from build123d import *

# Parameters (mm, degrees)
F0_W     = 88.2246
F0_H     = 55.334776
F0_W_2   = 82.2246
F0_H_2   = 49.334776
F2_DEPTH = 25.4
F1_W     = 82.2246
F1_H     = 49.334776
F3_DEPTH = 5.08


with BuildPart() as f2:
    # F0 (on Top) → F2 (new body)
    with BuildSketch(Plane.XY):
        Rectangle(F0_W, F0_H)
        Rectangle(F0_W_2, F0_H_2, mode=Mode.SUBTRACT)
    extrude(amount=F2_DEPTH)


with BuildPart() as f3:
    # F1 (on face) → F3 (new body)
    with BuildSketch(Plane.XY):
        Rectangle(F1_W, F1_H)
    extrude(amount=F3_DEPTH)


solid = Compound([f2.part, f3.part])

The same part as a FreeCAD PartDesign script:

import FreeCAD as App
import Part
import Sketcher
Q = App.Units.Quantity


def add_polygon(sketch, points):
    """Adds a closed chain of lines whose ends are joined by coincident constraints."""
    first, n = sketch.GeometryCount, len(points)
    for a, b in zip(points, points[1:] + points[:1]):
        sketch.addGeometry(Part.LineSegment(App.Vector(*a, 0), App.Vector(*b, 0)), False)
    for i in range(n):
        sketch.addConstraint(Sketcher.Constraint("Coincident", first + i, 2, first + (i + 1) % n, 1))

doc = App.newDocument("Part")
params = doc.addObject("Spreadsheet::Sheet", "Params")
for row, (alias, value) in enumerate([
    ("pad1_length", "1 in"),
    ("pad2_length", "0.2 in"),
], start=1):
    params.set(f"A{row}", alias)
    params.set(f"B{row}", "=" + value)
    params.setAlias(f"B{row}", alias)

body = doc.addObject("PartDesign::Body", "Body")

# Sketch on XY plane
sketch1 = body.newObject("Sketcher::SketchObject", "Sketch")
sketch1.AttachmentSupport = (doc.getObject("XY_Plane"), [""])
sketch1.MapMode = "FlatFace"
add_polygon(sketch1, [(-44, 28), (-44, -28), (44, -28), (44, 28)])  # lines 0-3
add_polygon(sketch1, [(41, -25), (-41, -25), (-41, 25), (41, 25)])  # lines 4-7
sketch1.addConstraint([
    Sketcher.Constraint("Vertical", 0),
    Sketcher.Constraint("Horizontal", 1),
    Sketcher.Constraint("Vertical", 2),
    Sketcher.Constraint("Horizontal", 3),
    Sketcher.Constraint("Horizontal", 4),
    Sketcher.Constraint("Vertical", 5),
    Sketcher.Constraint("Horizontal", 6),
    Sketcher.Constraint("Vertical", 7),
    Sketcher.Constraint("Symmetric", 0, 2, 2, 2, -1, 1),
    Sketcher.Constraint("Symmetric", 4, 2, 6, 2, -1, 1),
    Sketcher.Constraint("DistanceX", 1, 1, 1, 2, Q("88.2246 mm")),
    Sketcher.Constraint("DistanceX", 4, 2, 4, 1, Q("82.2246 mm")),
    Sketcher.Constraint("DistanceY", 0, 2, 4, 2, Q("3 mm")),
    Sketcher.Constraint("DistanceY", 0, 2, 0, 1, Q("55.334776 mm")),
])
pad1 = body.newObject("PartDesign::Pad", "Pad")
pad1.Profile = sketch1
pad1.setExpression("Length", "Params.pad1_length")
body2 = doc.addObject("PartDesign::Body", "Body001")

# Sketch on XY plane
sketch2 = body2.newObject("Sketcher::SketchObject", "Sketch001")
sketch2.AttachmentSupport = (doc.getObject("XY_Plane001"), [""])
sketch2.MapMode = "FlatFace"
add_polygon(sketch2, [(-41, 25), (-41, -25), (41, -25), (41, 25)])  # lines 0-3
sketch2.addConstraint([
    Sketcher.Constraint("Vertical", 0),
    Sketcher.Constraint("Horizontal", 1),
    Sketcher.Constraint("Vertical", 2),
    Sketcher.Constraint("Horizontal", 3),
    Sketcher.Constraint("Symmetric", 0, 2, 2, 2, -1, 1),
    Sketcher.Constraint("DistanceX", 1, 1, 1, 2, Q("82.2246 mm")),
    Sketcher.Constraint("DistanceY", 0, 2, 0, 1, Q("49.334776 mm")),
])
pad2 = body2.newObject("PartDesign::Pad", "Pad001")
pad2.Profile = sketch2
pad2.setExpression("Length", "Params.pad2_length")

doc.recompute()
